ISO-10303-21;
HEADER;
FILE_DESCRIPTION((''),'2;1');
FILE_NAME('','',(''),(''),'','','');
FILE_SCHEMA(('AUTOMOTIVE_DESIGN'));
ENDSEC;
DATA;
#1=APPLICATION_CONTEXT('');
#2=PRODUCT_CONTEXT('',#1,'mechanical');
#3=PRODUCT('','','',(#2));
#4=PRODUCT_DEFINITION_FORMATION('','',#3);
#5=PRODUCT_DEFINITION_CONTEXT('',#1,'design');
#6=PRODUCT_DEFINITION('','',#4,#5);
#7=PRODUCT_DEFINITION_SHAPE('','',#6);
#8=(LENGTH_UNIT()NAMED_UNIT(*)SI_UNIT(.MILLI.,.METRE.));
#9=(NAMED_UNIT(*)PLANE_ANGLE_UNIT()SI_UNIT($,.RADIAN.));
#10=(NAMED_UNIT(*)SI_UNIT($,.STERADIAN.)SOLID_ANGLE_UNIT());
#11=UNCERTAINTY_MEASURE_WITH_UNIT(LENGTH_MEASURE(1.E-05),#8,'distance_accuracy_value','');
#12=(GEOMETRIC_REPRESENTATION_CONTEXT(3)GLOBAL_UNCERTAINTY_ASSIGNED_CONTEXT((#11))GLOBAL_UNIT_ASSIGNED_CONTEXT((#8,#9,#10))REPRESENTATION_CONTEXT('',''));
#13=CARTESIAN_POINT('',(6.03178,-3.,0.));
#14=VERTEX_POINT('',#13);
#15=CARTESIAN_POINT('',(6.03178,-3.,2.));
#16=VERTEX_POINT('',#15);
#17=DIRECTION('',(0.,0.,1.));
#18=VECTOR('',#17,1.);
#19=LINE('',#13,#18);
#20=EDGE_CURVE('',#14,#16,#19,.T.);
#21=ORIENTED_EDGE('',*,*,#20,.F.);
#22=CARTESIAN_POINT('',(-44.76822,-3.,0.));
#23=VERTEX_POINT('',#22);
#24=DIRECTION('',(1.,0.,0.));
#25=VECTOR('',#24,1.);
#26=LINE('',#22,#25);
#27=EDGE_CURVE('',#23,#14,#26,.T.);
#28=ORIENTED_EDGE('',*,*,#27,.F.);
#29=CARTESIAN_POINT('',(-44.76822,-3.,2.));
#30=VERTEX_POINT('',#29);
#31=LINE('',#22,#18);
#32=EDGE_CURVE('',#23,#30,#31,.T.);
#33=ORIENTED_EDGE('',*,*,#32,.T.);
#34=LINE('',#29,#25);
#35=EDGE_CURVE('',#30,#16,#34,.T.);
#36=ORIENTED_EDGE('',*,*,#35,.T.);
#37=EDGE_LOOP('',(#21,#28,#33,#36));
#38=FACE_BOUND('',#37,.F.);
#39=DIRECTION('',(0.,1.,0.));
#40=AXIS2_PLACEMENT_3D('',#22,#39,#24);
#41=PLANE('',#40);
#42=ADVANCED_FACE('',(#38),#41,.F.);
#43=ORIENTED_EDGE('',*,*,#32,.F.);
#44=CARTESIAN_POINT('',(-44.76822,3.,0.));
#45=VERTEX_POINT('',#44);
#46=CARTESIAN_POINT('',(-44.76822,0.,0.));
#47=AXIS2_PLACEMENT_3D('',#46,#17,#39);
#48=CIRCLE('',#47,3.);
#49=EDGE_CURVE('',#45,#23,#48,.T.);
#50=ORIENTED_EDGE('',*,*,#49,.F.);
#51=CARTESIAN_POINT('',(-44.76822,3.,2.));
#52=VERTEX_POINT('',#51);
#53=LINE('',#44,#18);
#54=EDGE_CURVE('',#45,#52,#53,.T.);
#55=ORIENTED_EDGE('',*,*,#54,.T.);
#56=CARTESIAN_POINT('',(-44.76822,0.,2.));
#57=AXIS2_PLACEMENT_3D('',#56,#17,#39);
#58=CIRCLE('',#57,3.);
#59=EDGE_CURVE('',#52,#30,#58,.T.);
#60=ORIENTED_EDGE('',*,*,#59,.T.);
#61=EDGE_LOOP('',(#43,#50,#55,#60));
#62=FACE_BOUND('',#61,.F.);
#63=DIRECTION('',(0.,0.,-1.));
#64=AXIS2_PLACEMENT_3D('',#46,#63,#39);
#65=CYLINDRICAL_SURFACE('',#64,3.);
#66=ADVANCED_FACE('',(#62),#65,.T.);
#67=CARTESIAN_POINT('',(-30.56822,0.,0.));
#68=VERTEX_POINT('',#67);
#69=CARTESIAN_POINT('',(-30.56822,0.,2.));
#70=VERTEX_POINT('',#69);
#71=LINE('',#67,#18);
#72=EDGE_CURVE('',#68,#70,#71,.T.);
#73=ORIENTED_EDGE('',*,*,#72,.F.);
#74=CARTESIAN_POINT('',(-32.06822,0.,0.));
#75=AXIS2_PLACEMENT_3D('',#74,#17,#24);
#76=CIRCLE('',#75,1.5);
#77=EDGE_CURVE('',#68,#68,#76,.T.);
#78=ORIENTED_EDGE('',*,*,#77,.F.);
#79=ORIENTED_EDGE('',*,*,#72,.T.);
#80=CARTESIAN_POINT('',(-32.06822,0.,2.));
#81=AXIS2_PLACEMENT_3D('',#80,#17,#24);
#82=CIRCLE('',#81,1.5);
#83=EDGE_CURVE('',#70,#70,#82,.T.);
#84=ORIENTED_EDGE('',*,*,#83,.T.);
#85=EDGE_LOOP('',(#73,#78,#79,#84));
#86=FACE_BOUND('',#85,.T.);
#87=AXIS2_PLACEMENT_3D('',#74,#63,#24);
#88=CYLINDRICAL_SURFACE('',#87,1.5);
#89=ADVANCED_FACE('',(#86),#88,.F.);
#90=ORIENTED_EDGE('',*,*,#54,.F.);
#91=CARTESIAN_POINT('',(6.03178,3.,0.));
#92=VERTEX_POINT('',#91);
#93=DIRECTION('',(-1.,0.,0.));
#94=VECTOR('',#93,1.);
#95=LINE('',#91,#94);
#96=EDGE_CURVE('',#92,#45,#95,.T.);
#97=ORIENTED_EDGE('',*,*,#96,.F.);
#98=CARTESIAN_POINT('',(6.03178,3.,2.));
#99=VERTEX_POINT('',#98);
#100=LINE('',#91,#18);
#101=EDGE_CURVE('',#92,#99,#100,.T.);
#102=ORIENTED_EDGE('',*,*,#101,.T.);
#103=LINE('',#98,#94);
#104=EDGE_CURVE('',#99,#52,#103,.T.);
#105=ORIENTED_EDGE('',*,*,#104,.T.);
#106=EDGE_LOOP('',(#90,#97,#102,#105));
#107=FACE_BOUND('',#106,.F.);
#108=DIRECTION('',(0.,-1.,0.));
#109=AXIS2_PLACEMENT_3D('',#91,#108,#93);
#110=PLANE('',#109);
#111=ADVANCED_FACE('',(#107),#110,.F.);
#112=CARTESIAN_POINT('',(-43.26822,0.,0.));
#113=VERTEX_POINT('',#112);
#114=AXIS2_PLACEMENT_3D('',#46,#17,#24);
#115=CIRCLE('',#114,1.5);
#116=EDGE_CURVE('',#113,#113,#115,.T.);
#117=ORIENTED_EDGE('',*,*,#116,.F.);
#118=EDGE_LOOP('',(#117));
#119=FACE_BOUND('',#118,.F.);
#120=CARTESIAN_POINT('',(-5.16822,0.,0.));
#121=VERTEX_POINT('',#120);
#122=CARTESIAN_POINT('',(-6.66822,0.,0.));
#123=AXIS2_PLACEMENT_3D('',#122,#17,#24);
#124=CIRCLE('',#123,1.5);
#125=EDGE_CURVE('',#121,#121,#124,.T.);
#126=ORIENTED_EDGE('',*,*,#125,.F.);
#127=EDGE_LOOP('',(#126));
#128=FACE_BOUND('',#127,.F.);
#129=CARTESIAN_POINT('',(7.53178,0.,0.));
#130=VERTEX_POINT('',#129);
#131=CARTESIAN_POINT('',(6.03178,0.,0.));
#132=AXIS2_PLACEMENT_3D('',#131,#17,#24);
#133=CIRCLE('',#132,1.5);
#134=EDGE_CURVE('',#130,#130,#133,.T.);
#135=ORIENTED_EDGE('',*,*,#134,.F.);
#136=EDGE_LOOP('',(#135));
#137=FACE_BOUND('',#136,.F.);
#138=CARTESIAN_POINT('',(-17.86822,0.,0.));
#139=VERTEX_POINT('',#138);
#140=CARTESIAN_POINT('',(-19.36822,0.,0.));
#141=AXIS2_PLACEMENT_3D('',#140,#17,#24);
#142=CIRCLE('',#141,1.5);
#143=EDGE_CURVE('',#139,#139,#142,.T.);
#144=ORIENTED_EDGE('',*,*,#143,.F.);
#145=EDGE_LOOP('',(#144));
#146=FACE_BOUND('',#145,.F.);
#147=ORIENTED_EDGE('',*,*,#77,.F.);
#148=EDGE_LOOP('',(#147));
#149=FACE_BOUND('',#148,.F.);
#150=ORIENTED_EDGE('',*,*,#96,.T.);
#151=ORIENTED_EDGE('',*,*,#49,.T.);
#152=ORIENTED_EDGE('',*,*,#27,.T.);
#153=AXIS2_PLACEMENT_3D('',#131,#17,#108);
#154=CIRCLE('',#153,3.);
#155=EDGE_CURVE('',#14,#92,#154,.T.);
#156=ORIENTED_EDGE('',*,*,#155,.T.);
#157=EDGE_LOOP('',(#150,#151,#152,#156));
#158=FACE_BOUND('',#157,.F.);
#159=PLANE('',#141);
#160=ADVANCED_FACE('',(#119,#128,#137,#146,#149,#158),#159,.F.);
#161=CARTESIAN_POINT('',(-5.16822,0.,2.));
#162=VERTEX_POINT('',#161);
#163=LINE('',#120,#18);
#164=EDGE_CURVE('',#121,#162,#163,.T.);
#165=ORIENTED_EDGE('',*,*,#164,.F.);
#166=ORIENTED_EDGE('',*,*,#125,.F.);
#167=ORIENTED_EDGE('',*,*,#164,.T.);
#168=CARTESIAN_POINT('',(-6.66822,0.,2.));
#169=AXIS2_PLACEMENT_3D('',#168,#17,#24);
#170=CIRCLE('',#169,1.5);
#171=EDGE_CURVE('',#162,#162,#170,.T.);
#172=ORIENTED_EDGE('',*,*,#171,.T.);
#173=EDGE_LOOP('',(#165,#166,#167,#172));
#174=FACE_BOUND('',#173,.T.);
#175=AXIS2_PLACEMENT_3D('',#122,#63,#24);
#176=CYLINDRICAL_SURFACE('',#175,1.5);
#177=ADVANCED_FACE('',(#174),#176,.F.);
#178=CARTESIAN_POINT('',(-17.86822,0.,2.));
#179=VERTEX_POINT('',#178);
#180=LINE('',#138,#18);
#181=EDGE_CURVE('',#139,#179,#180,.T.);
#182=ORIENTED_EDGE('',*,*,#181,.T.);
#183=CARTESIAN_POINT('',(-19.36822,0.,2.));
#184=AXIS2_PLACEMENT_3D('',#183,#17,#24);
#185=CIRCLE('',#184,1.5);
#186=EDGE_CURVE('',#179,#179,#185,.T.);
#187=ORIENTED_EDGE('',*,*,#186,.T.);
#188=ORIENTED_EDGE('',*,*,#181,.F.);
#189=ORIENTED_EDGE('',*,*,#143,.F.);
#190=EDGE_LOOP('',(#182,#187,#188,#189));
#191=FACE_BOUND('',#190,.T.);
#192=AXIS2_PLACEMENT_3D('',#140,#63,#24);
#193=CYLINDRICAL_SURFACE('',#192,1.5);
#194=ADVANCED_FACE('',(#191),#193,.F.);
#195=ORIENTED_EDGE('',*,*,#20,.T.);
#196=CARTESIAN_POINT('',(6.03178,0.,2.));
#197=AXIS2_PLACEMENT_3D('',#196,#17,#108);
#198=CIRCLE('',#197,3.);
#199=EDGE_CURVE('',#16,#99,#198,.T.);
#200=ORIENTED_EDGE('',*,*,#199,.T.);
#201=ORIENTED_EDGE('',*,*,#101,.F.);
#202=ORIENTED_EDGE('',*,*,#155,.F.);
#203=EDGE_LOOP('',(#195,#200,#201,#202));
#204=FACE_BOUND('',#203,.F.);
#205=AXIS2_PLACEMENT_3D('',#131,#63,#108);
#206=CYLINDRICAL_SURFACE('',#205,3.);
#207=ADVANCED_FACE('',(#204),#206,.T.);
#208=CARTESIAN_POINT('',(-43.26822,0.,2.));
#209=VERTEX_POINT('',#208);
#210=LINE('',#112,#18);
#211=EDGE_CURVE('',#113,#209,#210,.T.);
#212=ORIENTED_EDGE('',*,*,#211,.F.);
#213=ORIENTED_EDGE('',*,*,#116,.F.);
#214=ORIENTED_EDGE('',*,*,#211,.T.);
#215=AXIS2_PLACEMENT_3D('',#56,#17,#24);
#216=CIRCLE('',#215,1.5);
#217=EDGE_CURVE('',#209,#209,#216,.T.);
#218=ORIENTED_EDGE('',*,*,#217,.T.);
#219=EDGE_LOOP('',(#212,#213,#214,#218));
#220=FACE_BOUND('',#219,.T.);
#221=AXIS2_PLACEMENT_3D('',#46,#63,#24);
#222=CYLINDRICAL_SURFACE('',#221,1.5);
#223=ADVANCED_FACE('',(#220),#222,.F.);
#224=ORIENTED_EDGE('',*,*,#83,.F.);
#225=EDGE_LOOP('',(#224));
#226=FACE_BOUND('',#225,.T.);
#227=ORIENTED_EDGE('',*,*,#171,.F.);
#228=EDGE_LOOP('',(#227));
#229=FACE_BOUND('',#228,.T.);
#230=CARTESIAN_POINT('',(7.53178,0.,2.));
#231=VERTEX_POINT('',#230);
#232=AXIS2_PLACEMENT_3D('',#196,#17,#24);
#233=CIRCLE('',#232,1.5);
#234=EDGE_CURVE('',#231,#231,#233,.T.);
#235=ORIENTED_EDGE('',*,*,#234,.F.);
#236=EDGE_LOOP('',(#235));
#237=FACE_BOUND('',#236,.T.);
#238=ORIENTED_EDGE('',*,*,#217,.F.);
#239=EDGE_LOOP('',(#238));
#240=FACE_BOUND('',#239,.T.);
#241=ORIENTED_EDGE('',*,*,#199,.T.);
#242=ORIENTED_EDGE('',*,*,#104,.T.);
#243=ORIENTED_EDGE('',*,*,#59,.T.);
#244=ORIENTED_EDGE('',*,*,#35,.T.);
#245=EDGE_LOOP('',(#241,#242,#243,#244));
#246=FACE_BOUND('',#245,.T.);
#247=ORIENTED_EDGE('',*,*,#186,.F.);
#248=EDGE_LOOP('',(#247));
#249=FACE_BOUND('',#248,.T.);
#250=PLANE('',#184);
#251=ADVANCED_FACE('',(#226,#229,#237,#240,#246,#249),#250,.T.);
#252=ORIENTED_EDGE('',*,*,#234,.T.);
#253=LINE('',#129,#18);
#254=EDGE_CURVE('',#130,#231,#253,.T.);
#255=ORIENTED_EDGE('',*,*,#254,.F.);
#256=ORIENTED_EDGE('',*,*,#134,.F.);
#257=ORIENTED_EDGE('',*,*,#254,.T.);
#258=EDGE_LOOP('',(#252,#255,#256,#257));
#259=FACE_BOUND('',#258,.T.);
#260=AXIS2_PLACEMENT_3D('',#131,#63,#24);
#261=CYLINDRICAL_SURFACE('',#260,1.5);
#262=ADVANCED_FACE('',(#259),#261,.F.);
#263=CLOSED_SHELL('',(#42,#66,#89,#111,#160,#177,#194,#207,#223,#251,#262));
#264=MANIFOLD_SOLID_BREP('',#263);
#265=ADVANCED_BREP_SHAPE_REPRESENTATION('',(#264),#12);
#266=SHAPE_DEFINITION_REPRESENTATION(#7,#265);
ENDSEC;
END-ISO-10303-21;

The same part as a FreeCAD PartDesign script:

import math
import FreeCAD as App
import Part
import Sketcher

V = App.Vector
Q = App.Units.Quantity

doc = App.newDocument("Part")
body = doc.addObject("PartDesign::Body", "Body")

# Sketch on XY plane
sketch1 = body.newObject("Sketcher::SketchObject", "Sketch")
sketch1.AttachmentSupport = (doc.getObject("XY_Plane"), [""])
sketch1.MapMode = "FlatFace"
sketch1.addGeometry(Part.LineSegment(V(6, 3, 0), V(-44.8, 3, 0)), False)
sketch1.addGeometry(Part.ArcOfCircle(Part.Circle(V(-44.8, 0, 0), V(0, 0, 1), 3), math.radians(90), math.radians(270)), False)
sketch1.addGeometry(Part.LineSegment(V(-44.8, -3, 0), V(6, -3, 0)), False)
sketch1.addGeometry(Part.ArcOfCircle(Part.Circle(V(6, 0, 0), V(0, 0, 1), 3), math.radians(-90), math.radians(90)), False)
sketch1.addGeometry(Part.Circle(V(-44.8, 0, 0), V(0, 0, 1), 1.5), False)
sketch1.addGeometry(Part.Circle(V(-32.1, 0, 0), V(0, 0, 1), 1.5), False)
sketch1.addGeometry(Part.Circle(V(-19.4, 0, 0), V(0, 0, 1), 1.5), False)
sketch1.addGeometry(Part.Circle(V(-6.7, 0, 0), V(0, 0, 1), 1.5), False)
sketch1.addGeometry(Part.Circle(V(6, 0, 0), V(0, 0, 1), 1.5), False)
sketch1.addConstraint(Sketcher.Constraint("Tangent", 0, 2, 1, 1))
sketch1.addConstraint(Sketcher.Constraint("Tangent", 1, 2, 2, 1))
sketch1.addConstraint(Sketcher.Constraint("Tangent", 2, 2, 3, 1))
sketch1.addConstraint(Sketcher.Constraint("Tangent", 3, 2, 0, 1))
sketch1.addConstraint(Sketcher.Constraint("Horizontal", 0))
sketch1.addConstraint(Sketcher.Constraint("Horizontal", 2))
sketch1.addConstraint(Sketcher.Constraint("Coincident", 4, 3, 1, 3))
sketch1.addConstraint(Sketcher.Constraint("Coincident", 8, 3, 3, 3))
sketch1.addConstraint(Sketcher.Constraint("Equal", 4, 5))
sketch1.addConstraint(Sketcher.Constraint("Equal", 5, 6))
sketch1.addConstraint(Sketcher.Constraint("Equal", 6, 7))
sketch1.addConstraint(Sketcher.Constraint("Equal", 7, 8))
sketch1.addConstraint(Sketcher.Constraint("PointOnObject", 1, 3, -1))
sketch1.addConstraint(Sketcher.Constraint("PointOnObject", 5, 3, -1))
sketch1.addConstraint(Sketcher.Constraint("PointOnObject", 6, 3, -1))
sketch1.addConstraint(Sketcher.Constraint("PointOnObject", 7, 3, -1))
sketch1.addConstraint(Sketcher.Constraint("Diameter", 4, Q("3 mm")))
sketch1.addConstraint(Sketcher.Constraint("Radius", 1, Q("3 mm")))
sketch1.addConstraint(Sketcher.Constraint("DistanceX", 0, 2, 0, 1, Q("50.8 mm")))
sketch1.addConstraint(Sketcher.Constraint("DistanceX", 1, 3, 5, 3, Q("12.7 mm")))
sketch1.addConstraint(Sketcher.Constraint("DistanceX", 5, 3, 6, 3, Q("12.7 mm")))
sketch1.addConstraint(Sketcher.Constraint("DistanceX", 7, 3, 3, 3, Q("12.7 mm")))
sketch1.addConstraint(Sketcher.Constraint("DistanceX", 1, 3, -1, 1, Q("44.76822 mm")))
pad1 = body.newObject("PartDesign::Pad", "Pad")
pad1.Profile = sketch1
pad1.Length = 2

doc.recompute()
